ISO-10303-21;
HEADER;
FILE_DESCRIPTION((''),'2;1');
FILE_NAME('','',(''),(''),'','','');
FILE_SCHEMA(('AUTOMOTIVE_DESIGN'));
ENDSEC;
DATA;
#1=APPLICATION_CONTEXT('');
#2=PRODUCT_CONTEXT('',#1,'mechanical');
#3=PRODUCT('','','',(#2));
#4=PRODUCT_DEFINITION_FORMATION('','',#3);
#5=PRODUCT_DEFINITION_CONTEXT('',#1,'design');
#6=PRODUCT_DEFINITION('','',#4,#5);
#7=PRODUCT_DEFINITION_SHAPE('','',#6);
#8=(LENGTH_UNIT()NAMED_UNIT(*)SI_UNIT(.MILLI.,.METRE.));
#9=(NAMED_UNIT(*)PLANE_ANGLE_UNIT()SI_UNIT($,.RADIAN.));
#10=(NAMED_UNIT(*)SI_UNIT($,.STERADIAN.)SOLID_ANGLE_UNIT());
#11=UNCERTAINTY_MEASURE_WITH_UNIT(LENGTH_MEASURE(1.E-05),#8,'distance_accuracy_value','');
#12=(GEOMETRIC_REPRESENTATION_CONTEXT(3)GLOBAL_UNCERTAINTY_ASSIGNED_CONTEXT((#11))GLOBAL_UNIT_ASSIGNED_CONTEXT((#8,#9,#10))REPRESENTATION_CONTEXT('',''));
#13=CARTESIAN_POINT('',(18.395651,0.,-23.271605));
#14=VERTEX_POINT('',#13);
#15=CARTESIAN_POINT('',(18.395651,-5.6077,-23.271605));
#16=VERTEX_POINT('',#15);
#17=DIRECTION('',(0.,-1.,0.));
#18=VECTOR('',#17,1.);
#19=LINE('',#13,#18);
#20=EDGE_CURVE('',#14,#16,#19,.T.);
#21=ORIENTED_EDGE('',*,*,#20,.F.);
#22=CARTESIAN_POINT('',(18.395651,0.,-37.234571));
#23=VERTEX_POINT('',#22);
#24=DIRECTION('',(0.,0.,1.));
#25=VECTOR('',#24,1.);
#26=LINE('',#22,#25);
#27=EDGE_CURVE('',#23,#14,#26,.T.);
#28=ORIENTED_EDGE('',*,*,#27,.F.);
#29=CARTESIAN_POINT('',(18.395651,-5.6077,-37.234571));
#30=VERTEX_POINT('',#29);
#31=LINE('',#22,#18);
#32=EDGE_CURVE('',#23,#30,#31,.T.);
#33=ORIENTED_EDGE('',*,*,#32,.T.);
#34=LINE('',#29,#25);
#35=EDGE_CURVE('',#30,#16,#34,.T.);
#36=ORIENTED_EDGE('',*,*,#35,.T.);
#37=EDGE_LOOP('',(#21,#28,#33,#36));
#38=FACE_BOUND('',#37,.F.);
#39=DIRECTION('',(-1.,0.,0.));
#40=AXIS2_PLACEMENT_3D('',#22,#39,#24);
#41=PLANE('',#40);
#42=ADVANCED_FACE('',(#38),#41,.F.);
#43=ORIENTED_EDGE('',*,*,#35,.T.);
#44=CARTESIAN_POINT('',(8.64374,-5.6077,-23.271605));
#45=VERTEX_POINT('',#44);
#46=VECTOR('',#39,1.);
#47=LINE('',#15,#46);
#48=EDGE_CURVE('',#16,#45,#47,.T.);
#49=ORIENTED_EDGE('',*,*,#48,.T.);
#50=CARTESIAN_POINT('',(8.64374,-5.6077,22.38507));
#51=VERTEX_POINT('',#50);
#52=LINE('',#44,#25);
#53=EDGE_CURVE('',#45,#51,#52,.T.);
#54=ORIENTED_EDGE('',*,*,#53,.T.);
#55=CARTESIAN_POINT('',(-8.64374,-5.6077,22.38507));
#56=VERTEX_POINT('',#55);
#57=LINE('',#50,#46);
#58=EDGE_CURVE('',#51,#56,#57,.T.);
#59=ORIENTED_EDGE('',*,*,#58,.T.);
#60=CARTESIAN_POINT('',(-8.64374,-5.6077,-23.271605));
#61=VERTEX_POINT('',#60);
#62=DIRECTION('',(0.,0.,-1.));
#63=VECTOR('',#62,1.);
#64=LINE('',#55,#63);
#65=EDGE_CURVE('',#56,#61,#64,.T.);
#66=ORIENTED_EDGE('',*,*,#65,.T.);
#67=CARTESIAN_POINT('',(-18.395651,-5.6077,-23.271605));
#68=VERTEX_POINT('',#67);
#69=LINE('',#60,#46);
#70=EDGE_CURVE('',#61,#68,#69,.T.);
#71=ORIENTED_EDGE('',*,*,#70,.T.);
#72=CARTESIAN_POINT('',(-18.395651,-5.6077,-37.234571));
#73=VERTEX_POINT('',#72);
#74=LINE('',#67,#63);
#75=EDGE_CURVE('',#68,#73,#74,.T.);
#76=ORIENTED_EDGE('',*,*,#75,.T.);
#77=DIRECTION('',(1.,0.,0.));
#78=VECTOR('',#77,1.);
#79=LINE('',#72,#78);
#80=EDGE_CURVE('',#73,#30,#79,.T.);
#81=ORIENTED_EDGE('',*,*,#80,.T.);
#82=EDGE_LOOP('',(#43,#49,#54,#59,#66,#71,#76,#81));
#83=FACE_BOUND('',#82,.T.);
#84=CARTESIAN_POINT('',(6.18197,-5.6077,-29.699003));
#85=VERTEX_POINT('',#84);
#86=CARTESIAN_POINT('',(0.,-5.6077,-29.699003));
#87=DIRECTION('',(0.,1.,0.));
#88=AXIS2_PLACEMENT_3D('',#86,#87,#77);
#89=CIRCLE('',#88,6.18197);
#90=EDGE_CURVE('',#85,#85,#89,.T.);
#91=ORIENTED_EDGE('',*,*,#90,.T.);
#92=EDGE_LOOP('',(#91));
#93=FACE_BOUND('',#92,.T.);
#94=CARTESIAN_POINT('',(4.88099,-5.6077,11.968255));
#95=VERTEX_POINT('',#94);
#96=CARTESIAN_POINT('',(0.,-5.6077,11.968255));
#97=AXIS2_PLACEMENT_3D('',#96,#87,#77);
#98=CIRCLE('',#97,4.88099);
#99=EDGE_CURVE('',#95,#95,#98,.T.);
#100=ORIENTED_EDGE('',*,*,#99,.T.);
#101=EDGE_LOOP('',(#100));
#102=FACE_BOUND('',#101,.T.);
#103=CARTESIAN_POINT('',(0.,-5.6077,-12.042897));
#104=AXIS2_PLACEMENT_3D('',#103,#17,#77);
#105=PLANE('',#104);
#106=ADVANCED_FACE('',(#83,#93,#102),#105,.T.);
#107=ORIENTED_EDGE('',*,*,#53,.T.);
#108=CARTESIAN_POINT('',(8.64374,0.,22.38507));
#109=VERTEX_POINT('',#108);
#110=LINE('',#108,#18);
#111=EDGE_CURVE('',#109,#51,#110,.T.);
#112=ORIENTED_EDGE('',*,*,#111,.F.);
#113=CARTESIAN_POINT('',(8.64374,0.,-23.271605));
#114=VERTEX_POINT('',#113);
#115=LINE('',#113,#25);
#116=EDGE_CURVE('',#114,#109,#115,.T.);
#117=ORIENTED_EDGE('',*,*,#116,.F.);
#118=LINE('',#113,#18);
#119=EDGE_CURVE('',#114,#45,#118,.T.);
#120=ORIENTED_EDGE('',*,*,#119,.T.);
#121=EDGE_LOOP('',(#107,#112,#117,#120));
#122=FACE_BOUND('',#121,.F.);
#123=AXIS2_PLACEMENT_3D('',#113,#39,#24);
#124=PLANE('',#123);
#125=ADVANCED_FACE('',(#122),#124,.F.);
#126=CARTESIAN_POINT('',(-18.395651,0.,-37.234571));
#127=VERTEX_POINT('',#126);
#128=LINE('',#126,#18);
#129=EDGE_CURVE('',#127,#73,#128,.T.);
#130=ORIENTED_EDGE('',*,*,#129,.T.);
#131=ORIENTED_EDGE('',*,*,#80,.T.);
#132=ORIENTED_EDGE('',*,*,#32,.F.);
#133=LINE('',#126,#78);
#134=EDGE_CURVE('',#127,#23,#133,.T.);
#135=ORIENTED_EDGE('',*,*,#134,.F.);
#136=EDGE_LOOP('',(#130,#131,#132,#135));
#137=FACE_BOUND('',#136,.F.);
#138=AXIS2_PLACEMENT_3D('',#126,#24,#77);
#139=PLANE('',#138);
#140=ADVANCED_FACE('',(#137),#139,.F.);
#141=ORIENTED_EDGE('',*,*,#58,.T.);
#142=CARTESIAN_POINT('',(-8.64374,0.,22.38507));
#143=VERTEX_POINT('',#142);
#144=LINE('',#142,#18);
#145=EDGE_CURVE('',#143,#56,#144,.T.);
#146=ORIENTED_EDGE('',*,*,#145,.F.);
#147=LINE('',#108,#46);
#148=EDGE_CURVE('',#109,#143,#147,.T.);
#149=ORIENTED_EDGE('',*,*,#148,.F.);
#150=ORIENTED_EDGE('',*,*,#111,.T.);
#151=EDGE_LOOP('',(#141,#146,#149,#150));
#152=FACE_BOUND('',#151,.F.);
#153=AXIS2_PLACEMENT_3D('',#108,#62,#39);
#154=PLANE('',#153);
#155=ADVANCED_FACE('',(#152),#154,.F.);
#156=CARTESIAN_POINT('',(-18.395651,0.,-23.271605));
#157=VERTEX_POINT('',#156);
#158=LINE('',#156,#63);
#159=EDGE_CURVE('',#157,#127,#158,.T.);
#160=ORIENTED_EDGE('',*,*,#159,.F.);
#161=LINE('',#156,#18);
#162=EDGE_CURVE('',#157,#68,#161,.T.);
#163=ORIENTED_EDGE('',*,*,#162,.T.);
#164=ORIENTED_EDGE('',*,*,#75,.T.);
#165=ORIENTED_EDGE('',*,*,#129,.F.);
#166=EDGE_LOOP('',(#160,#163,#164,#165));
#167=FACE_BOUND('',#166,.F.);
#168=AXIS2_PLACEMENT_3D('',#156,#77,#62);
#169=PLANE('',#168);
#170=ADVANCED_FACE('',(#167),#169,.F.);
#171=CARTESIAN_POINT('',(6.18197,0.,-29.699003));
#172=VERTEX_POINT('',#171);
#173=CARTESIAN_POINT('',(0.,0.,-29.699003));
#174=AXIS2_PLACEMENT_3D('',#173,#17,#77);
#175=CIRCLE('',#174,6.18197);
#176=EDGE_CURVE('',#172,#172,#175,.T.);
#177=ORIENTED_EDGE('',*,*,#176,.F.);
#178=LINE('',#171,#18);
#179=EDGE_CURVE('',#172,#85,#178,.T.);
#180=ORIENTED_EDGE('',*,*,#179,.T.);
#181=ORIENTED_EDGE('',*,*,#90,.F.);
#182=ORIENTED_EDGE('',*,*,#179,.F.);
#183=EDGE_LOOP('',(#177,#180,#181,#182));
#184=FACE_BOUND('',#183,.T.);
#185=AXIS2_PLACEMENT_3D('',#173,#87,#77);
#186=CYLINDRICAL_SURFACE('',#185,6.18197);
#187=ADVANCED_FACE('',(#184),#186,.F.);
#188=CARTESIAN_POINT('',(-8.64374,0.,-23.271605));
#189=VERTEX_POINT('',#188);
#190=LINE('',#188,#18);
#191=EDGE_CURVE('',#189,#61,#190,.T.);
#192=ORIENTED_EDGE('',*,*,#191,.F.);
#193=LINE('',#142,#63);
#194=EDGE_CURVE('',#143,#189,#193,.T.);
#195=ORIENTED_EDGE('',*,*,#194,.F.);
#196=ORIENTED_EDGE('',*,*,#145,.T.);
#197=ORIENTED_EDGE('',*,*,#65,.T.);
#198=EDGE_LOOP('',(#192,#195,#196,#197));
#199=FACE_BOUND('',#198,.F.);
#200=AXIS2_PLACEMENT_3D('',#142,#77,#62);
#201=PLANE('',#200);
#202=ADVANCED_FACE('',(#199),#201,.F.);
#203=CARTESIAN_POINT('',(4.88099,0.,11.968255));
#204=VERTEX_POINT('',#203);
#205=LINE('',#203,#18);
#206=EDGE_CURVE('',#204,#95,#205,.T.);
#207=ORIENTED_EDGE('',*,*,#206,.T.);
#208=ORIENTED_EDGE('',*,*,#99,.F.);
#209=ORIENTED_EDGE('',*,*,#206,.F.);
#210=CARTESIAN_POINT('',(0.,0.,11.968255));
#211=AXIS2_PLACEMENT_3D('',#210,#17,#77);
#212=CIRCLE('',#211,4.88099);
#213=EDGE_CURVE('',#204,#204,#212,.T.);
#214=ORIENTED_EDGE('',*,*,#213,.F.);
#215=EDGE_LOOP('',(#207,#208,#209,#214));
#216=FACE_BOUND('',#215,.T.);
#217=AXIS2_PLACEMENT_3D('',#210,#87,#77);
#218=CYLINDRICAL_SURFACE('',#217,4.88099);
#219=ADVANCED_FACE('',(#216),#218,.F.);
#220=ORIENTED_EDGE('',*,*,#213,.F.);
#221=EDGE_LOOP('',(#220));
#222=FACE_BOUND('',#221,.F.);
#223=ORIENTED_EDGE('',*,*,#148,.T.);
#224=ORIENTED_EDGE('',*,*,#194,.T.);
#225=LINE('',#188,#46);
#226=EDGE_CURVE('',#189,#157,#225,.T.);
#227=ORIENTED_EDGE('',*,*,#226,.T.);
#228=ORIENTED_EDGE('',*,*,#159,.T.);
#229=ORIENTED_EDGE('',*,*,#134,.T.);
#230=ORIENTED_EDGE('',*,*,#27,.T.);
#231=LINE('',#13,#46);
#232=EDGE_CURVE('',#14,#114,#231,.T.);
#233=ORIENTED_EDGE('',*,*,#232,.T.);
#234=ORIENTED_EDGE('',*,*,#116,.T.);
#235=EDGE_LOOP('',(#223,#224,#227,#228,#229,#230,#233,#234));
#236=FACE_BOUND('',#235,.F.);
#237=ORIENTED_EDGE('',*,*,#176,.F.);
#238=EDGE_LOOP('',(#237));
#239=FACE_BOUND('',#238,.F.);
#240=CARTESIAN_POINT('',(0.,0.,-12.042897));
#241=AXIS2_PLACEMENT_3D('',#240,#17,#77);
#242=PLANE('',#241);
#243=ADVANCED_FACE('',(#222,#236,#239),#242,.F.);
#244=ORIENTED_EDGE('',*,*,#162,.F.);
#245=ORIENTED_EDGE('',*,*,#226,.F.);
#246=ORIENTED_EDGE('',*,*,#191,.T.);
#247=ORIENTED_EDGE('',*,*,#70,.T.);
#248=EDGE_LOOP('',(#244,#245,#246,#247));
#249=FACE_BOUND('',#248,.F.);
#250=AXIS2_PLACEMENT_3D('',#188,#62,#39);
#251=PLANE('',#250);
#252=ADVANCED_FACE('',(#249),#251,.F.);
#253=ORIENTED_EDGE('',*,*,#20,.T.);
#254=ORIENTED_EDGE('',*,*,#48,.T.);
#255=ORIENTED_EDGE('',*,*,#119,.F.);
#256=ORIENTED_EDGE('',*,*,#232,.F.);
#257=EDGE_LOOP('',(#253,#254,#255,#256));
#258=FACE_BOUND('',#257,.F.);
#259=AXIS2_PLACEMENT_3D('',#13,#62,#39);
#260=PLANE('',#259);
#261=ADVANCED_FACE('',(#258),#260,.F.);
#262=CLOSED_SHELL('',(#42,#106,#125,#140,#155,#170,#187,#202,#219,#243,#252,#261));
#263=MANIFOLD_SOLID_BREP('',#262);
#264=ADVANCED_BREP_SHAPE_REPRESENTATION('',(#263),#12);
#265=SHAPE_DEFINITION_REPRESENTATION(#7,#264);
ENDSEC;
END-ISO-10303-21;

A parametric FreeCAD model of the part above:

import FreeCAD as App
import Part
import Sketcher
from FreeCAD import Vector
Q = App.Units.Quantity

doc = App.newDocument("Part")
body = doc.addObject("PartDesign::Body", "Body")

sketch1 = doc.addObject("Sketcher::SketchObject", "Sketch")
body.addObject(sketch1)
sketch1.AttachmentSupport = (doc.XZ_Plane, [""])
sketch1.MapMode = "FlatFace"
sketch1.addGeometry(Part.LineSegment(Vector(9, 22, 0), Vector(-9, 22, 0)), False)
sketch1.addGeometry(Part.LineSegment(Vector(-9, 22, 0), Vector(-9, -23, 0)), False)
sketch1.addGeometry(Part.LineSegment(Vector(-9, -23, 0), Vector(-18, -23, 0)), False)
sketch1.addGeometry(Part.LineSegment(Vector(-18, -23, 0), Vector(-18, -37, 0)), False)
sketch1.addGeometry(Part.LineSegment(Vector(-18, -37, 0), Vector(18, -37, 0)), False)
sketch1.addGeometry(Part.LineSegment(Vector(18, -37, 0), Vector(18, -23, 0)), False)
sketch1.addGeometry(Part.LineSegment(Vector(18, -23, 0), Vector(9, -23, 0)), False)
sketch1.addGeometry(Part.LineSegment(Vector(9, -23, 0), Vector(9, 22, 0)), False)
sketch1.addConstraint(Sketcher.Constraint("Coincident", 0, 2, 1, 1))
sketch1.addConstraint(Sketcher.Constraint("Coincident", 1, 2, 2, 1))
sketch1.addConstraint(Sketcher.Constraint("Coincident", 2, 2, 3, 1))
sketch1.addConstraint(Sketcher.Constraint("Coincident", 3, 2, 4, 1))
sketch1.addConstraint(Sketcher.Constraint("Coincident", 4, 2, 5, 1))
sketch1.addConstraint(Sketcher.Constraint("Coincident", 5, 2, 6, 1))
sketch1.addConstraint(Sketcher.Constraint("Coincident", 6, 2, 7, 1))
sketch1.addConstraint(Sketcher.Constraint("Coincident", 7, 2, 0, 1))
sketch1.addConstraint(Sketcher.Constraint("Horizontal", 0))
sketch1.addConstraint(Sketcher.Constraint("Vertical", 1))
sketch1.addConstraint(Sketcher.Constraint("Horizontal", 2))
sketch1.addConstraint(Sketcher.Constraint("Vertical", 3))
sketch1.addConstraint(Sketcher.Constraint("Horizontal", 4))
sketch1.addConstraint(Sketcher.Constraint("Vertical", 5))
sketch1.addConstraint(Sketcher.Constraint("Horizontal", 6))
sketch1.addConstraint(Sketcher.Constraint("Vertical", 7))
sketch1.addConstraint(Sketcher.Constraint("Symmetric", 2, 2, 5, 2, -2))
sketch1.addConstraint(Sketcher.Constraint("Equal", 2, 6))
sketch1.addConstraint(Sketcher.Constraint("DistanceX", 0, 2, 0, 1, Q("17.28748 mm")))
sketch1.addConstraint(Sketcher.Constraint("DistanceX", 2, 2, 2, 1, Q("9.751911 mm")))
sketch1.addConstraint(Sketcher.Constraint("DistanceY", 1, 2, 1, 1, Q("45.656675 mm")))
sketch1.addConstraint(Sketcher.Constraint("DistanceY", 3, 2, 3, 1, Q("13.962966 mm")))
sketch1.addConstraint(Sketcher.Constraint("DistanceY", -1, 1, 0, 2, Q("22.38507 mm")))
pad1 = doc.addObject("PartDesign::Pad", "Pad")
body.addObject(pad1)
pad1.Profile = sketch1
pad1.Length = 5.6077

sketch2 = doc.addObject("Sketcher::SketchObject", "Sketch001")
body.addObject(sketch2)
sketch2.AttachmentSupport = (doc.XZ_Plane, [""])
sketch2.MapMode = "FlatFace"
sketch2.addGeometry(Part.Circle(Vector(0, 12, 0), Vector(0, 0, 1), 4.9), False)
sketch2.addConstraint(Sketcher.Constraint("PointOnObject", 0, 3, -2))
sketch2.addConstraint(Sketcher.Constraint("Diameter", 0, Q("9.76198 mm")))
sketch2.addConstraint(Sketcher.Constraint("DistanceY", -1, 1, 0, 3, Q("11.968255 mm")))
pocket1 = doc.addObject("PartDesign::Pocket", "Pocket")
body.addObject(pocket1)
pocket1.Profile = sketch2
pocket1.Length = Q("1 in")
pocket1.Reversed = True

sketch3 = doc.addObject("Sketcher::SketchObject", "Sketch002")
body.addObject(sketch3)
sketch3.AttachmentSupport = (doc.XZ_Plane, [""])
sketch3.MapMode = "FlatFace"
sketch3.addGeometry(Part.Circle(Vector(0, -30, 0), Vector(0, 0, 1), 6), False)
sketch3.addConstraint(Sketcher.Constraint("PointOnObject", 0, 3, -2))
sketch3.addConstraint(Sketcher.Constraint("Diameter", 0, Q("12.36394 mm")))
sketch3.addConstraint(Sketcher.Constraint("DistanceY", 0, 3, -1, 1, Q("29.699003 mm")))
pocket2 = doc.addObject("PartDesign::Pocket", "Pocket001")
body.addObject(pocket2)
pocket2.Profile = sketch3
pocket2.Length = Q("1 in")
pocket2.Reversed = True

doc.recompute()
